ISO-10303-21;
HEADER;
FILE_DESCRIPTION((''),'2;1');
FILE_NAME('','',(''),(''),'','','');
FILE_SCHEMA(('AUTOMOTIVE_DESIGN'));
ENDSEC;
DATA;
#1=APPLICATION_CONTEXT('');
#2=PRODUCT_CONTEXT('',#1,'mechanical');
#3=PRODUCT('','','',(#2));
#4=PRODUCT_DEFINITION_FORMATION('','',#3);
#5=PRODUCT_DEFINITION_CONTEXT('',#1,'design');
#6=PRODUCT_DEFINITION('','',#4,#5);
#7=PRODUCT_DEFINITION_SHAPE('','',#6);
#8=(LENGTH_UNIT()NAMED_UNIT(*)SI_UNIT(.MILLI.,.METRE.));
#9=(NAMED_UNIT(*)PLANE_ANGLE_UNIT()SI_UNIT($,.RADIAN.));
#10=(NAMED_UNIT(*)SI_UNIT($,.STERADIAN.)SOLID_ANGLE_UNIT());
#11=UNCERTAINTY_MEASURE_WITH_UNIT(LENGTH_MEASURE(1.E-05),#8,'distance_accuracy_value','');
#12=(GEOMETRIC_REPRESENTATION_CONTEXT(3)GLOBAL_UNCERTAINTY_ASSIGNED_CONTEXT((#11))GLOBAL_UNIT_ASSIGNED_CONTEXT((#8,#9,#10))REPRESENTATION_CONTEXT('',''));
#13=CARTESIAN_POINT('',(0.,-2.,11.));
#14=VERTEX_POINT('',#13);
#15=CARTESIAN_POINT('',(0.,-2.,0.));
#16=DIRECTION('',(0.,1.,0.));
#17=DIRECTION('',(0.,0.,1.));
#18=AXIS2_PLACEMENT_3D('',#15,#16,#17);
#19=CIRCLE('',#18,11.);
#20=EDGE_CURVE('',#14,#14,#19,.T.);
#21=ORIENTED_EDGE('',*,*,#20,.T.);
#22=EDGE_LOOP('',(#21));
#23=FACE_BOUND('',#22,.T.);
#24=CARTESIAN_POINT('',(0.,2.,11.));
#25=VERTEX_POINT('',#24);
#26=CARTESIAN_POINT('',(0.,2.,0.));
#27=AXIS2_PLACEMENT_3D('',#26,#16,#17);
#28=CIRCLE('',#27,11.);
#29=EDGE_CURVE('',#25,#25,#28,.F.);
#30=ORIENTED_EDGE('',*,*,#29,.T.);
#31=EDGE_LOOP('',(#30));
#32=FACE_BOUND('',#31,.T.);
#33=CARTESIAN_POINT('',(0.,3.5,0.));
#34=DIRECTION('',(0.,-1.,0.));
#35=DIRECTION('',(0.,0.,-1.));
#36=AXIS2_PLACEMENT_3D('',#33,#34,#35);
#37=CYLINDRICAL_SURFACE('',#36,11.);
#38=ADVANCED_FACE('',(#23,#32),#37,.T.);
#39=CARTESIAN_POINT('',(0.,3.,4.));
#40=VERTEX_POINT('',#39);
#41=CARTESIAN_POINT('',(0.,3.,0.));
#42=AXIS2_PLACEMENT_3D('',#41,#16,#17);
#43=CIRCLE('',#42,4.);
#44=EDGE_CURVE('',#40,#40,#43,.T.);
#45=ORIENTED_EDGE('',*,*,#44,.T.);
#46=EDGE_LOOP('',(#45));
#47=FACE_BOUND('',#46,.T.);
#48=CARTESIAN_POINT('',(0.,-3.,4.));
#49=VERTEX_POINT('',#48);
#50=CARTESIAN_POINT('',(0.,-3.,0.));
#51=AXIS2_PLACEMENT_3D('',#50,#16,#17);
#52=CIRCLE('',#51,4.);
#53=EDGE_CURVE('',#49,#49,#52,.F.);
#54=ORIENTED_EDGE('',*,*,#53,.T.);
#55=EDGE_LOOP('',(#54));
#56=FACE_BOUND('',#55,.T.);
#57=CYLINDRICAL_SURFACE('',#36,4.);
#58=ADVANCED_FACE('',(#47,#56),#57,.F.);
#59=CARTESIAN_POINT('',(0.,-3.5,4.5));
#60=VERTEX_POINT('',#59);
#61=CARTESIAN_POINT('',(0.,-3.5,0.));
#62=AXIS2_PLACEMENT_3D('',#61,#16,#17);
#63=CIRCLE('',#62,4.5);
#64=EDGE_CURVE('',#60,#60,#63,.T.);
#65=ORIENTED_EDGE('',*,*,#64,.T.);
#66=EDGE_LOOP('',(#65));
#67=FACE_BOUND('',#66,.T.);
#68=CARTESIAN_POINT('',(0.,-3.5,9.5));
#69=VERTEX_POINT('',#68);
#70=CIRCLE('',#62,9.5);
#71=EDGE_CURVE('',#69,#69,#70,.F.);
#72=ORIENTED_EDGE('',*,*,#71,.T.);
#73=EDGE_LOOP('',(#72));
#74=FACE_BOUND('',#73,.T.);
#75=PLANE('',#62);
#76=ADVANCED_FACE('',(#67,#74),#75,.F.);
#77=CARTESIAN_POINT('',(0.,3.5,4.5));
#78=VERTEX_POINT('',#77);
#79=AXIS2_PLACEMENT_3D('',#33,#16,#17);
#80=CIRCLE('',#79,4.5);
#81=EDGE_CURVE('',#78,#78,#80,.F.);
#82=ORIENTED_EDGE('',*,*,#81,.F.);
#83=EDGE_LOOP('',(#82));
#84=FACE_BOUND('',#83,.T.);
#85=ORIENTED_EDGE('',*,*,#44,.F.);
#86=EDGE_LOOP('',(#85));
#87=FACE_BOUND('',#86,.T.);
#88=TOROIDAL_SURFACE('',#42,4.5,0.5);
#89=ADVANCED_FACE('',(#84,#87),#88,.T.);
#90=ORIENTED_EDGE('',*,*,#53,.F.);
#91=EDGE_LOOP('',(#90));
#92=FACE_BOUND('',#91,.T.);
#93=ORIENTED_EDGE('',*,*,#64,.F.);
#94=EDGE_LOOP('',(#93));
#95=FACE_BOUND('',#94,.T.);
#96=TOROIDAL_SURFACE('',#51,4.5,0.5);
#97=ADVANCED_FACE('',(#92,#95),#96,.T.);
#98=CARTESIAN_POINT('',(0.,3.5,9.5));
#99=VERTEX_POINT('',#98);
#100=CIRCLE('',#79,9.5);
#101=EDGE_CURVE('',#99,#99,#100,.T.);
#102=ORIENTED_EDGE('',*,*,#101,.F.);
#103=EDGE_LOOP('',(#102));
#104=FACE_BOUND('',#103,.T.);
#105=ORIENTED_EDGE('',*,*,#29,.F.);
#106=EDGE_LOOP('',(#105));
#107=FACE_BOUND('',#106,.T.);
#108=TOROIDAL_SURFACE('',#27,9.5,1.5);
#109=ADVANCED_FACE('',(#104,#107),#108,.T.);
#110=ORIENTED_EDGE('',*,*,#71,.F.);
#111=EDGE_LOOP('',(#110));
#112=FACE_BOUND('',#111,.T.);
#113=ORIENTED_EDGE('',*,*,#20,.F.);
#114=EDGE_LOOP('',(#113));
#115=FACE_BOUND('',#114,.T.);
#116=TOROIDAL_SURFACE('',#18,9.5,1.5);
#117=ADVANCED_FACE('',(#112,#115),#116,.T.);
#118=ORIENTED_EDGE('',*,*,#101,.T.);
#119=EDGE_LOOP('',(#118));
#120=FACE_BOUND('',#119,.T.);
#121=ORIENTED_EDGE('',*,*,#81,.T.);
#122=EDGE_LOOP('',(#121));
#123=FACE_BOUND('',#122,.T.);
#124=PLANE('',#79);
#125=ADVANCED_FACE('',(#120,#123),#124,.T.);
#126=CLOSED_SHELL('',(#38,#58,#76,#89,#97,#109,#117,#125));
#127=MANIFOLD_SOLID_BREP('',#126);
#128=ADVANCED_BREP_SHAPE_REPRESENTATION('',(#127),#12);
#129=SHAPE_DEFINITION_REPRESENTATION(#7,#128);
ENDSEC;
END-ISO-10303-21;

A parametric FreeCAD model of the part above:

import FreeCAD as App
import Part
import Sketcher


def edges_at(feature, points):
    """Names of the edges that pass closest to the given points."""
    edges = feature.Shape.Edges
    near = lambda p: min(range(len(edges)), key=lambda i: edges[i].distToShape(Part.Vertex(*p))[0])
    return sorted({f"Edge{near(p) + 1}" for p in points})

doc = App.newDocument("Part")
body = doc.addObject("PartDesign::Body", "Body")

# Sketch on XZ plane
sketch1 = body.newObject("Sketcher::SketchObject", "Sketch")
sketch1.AttachmentSupport = (doc.getObject("XZ_Plane"), [""])
sketch1.MapMode = "FlatFace"
sketch1.addGeometry([
    Part.Circle(App.Vector(0, 0, 0), App.Vector(0, 0, 1), 11),
    Part.Circle(App.Vector(0, 0, 0), App.Vector(0, 0, 1), 4),
], False)
sketch1.addConstraint([
    Sketcher.Constraint("Coincident", 0, 3, -1, 1),
    Sketcher.Constraint("Coincident", 1, 3, -1, 1),
    Sketcher.Constraint("Diameter", 0, 22.0),
    Sketcher.Constraint("Diameter", 1, 8.0),
])
pad1 = body.newObject("PartDesign::Pad", "Pad")
pad1.Profile = sketch1
pad1.Length = 7
pad1.Midplane = True
doc.recompute()

fillet = body.newObject("PartDesign::Fillet", "Fillet")
fillet.Base = (pad1, edges_at(pad1, [(0, -3.5, -11), (0, 3.5, -11)]))
fillet.Radius = 1.5
doc.recompute()

fillet2 = body.newObject("PartDesign::Fillet", "Fillet001")
fillet2.Base = (fillet, edges_at(fillet, [(0, -3.5, -4), (0, 3.5, -4)]))
fillet2.Radius = 0.5

doc.recompute()
